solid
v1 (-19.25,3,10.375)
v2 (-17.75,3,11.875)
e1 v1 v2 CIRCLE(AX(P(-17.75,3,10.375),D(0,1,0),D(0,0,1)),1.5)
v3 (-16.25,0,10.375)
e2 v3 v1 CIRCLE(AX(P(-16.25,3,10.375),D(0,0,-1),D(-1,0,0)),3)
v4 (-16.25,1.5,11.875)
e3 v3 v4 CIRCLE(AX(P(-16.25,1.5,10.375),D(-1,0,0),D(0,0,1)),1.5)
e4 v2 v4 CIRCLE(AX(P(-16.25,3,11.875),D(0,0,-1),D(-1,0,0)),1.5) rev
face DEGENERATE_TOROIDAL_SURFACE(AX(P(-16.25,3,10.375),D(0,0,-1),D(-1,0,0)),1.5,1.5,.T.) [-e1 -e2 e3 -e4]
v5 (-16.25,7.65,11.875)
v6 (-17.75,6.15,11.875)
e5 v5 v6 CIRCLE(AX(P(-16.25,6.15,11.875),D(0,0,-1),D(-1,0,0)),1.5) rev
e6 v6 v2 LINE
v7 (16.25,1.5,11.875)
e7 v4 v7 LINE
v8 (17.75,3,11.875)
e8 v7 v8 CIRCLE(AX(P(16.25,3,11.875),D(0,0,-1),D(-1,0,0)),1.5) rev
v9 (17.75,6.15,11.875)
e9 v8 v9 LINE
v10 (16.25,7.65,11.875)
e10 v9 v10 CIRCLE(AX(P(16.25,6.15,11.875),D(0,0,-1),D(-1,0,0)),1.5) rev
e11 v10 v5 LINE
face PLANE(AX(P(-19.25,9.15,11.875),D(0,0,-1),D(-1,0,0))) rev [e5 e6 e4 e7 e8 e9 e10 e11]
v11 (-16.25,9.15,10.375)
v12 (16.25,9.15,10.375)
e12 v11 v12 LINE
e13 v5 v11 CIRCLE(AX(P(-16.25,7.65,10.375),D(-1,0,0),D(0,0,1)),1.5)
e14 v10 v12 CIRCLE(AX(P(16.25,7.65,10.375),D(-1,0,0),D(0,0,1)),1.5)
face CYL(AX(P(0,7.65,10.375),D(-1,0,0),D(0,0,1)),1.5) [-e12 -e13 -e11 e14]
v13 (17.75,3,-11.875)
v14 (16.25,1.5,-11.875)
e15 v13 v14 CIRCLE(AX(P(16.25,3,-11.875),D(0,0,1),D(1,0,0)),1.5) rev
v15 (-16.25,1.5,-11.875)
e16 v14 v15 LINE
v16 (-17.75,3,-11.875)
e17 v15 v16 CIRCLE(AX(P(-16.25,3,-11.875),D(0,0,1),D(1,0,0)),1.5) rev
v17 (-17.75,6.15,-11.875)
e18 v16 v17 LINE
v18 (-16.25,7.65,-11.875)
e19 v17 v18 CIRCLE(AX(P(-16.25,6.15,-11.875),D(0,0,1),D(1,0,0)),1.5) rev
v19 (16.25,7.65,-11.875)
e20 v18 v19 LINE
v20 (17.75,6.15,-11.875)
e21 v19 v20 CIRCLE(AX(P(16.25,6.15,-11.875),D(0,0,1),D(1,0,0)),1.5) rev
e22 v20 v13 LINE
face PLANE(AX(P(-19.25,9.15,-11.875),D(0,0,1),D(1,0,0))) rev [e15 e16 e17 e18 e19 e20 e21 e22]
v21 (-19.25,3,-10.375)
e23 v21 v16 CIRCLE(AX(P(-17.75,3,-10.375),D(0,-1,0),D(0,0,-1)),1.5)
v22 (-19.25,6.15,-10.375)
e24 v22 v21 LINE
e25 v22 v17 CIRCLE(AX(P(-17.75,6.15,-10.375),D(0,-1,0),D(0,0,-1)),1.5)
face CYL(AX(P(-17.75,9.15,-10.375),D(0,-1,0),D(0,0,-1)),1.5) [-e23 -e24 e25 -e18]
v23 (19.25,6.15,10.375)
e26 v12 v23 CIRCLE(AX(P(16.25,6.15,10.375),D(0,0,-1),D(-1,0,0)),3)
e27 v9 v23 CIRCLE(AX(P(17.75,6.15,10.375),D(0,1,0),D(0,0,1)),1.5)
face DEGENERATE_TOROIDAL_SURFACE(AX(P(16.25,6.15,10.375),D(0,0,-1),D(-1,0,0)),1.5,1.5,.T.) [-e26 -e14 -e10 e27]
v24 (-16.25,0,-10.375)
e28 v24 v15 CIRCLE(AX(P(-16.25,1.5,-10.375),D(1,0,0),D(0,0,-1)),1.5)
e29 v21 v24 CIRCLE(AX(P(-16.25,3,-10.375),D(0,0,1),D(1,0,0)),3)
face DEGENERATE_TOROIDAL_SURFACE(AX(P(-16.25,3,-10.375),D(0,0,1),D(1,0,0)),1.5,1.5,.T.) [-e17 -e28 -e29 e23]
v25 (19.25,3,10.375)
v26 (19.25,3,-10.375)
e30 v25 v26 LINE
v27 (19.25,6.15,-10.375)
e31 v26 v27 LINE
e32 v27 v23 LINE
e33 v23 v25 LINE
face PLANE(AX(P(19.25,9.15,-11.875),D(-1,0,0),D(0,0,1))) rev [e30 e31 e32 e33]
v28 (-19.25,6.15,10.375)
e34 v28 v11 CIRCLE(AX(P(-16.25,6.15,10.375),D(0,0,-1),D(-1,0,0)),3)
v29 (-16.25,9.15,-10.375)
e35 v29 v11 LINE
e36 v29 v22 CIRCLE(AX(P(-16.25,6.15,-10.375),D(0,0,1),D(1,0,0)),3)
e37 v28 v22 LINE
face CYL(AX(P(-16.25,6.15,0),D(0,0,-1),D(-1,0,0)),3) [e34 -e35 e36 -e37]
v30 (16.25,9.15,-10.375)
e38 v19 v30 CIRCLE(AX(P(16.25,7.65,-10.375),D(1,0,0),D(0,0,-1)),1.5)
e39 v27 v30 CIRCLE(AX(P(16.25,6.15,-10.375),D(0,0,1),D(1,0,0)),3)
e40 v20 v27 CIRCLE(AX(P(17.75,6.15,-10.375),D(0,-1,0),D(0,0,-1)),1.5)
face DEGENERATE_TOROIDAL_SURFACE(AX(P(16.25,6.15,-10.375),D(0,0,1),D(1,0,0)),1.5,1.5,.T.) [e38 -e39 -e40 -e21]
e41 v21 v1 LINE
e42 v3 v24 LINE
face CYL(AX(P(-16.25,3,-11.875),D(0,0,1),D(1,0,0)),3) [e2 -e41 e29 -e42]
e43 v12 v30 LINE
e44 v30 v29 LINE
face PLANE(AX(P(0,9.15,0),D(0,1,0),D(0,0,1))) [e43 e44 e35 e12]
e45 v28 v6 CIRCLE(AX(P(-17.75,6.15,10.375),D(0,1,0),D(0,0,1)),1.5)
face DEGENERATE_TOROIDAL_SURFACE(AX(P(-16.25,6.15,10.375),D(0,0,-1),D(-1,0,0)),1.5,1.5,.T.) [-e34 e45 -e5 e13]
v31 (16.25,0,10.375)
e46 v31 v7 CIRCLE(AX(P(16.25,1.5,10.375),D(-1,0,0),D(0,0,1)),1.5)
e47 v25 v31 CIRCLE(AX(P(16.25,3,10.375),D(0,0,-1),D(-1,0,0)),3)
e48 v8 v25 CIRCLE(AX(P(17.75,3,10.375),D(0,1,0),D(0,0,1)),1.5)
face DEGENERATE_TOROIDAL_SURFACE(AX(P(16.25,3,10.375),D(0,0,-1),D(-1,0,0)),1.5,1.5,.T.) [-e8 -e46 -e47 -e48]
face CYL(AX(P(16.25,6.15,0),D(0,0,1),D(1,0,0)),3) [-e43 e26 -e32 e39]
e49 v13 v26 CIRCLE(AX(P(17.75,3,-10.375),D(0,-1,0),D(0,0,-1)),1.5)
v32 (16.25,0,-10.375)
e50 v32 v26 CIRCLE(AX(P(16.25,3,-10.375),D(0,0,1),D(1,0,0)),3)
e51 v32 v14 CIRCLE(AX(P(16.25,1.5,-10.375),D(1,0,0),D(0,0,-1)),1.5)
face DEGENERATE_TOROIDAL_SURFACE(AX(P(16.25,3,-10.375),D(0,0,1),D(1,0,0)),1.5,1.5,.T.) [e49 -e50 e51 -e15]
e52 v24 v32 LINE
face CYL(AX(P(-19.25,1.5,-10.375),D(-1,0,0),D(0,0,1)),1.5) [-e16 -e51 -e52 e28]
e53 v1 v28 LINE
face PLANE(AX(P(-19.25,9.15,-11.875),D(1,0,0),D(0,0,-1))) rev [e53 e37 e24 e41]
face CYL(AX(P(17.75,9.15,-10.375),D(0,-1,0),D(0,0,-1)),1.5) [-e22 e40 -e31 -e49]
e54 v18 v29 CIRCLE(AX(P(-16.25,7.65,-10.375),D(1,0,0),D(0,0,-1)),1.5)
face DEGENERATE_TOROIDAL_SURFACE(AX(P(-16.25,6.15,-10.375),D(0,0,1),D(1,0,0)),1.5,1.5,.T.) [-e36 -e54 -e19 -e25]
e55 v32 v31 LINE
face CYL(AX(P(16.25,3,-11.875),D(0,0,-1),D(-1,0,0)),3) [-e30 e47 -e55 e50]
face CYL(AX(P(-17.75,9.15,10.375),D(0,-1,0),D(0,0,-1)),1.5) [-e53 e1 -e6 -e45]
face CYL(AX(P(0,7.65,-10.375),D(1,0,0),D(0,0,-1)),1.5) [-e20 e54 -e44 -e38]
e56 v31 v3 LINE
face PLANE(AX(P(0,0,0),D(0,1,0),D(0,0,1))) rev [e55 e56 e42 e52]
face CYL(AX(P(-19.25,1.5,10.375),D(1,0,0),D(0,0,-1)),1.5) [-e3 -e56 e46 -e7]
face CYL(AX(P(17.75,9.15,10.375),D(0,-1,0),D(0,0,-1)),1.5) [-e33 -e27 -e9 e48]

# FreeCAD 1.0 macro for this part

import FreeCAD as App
import Part
import Sketcher
from FreeCAD import Vector
Q = App.Units.Quantity


def edges_at(feature, points):
    """Names of the edges that pass closest to the given points."""
    edges = feature.Shape.Edges
    near = lambda p: min(range(len(edges)), key=lambda i: edges[i].distToShape(Part.Vertex(*p))[0])
    return sorted({f"Edge{near(p) + 1}" for p in points})


def add_polygon(sketch, points):
    """Adds a closed chain of lines whose ends are joined by coincident constraints."""
    first, n = sketch.GeometryCount, len(points)
    for a, b in zip(points, points[1:] + points[:1]):
        sketch.addGeometry(Part.LineSegment(App.Vector(*a, 0), App.Vector(*b, 0)), False)
    for i in range(n):
        sketch.addConstraint(Sketcher.Constraint("Coincident", first + i, 2, first + (i + 1) % n, 1))

doc = App.newDocument("Part")
params = doc.addObject("Spreadsheet::Sheet", "Params")
for row, (alias, value) in enumerate([
    ("sketch1_width", "38.5 mm"),
    ("sketch1_height", "23.75 mm"),
    ("pad1_length", "9.15 mm"),
    ("fillet_radius", "3 mm"),
    ("fillet2_radius", "1.5 mm"),
], start=1):
    params.set(f"A{row}", alias)
    params.set(f"B{row}", "=" + value)
    params.setAlias(f"B{row}", alias)

body = doc.addObject("PartDesign::Body", "Body")

sketch1 = doc.addObject("Sketcher::SketchObject", "Sketch")
body.addObject(sketch1)
sketch1.AttachmentSupport = (doc.XZ_Plane, [""])
sketch1.MapMode = "FlatFace"
add_polygon(sketch1, [(-19, -12), (-19, 12), (19, 12), (19, -12)])
sketch1.addConstraint([
    Sketcher.Constraint("Vertical", 0),
    Sketcher.Constraint("Horizontal", 1),
    Sketcher.Constraint("Vertical", 2),
    Sketcher.Constraint("Horizontal", 3),
    Sketcher.Constraint("Symmetric", 0, 2, 2, 2, -1, 1),
    Sketcher.Constraint("DistanceX", 1, 1, 1, 2, Q("38.5 mm")),
    Sketcher.Constraint("DistanceY", 0, 1, 0, 2, Q("23.75 mm")),
])
sketch1.setExpression("Constraints[9]", "Params.sketch1_width")
sketch1.setExpression("Constraints[10]", "Params.sketch1_height")
pad1 = doc.addObject("PartDesign::Pad", "Pad")
body.addObject(pad1)
pad1.Profile = sketch1
pad1.setExpression("Length", "Params.pad1_length")
pad1.Reversed = True
doc.recompute()

fillet = doc.addObject("PartDesign::Fillet", "Fillet")
body.addObject(fillet)
fillet.Base = (pad1, edges_at(pad1, [
    (-19.25, 9.15, 0),
    (19.25, 9.15, 0),
    (-19.25, 0, 0),
    (19.25, 0, 0),
]))
fillet.setExpression("Radius", "Params.fillet_radius")
doc.recompute()

fillet2 = doc.addObject("PartDesign::Fillet", "Fillet001")
body.addObject(fillet2)
fillet2.Base = (fillet, edges_at(fillet, [
    (-19.25, 4.575, 11.875),
    (-19.25, 4.575, -11.875),
    (0, 0, 11.875),
    (19.25, 4.575, 11.875),
    (0, 9.15, 11.875),
    (18.371, 8.271, 11.875),
    (18.371, 0.879, 11.875),
    (-18.371, 8.271, 11.875),
    (-18.371, 0.879, 11.875),
    (0, 0, -11.875),
    (0, 9.15, -11.875),
    (19.25, 4.575, -11.875),
    (18.371, 8.271, -11.875),
    (18.371, 0.879, -11.875),
    (-18.371, 8.271, -11.875),
    (-18.371, 0.879, -11.875),
]))
fillet2.setExpression("Radius", "Params.fillet2_radius")

doc.recompute()
